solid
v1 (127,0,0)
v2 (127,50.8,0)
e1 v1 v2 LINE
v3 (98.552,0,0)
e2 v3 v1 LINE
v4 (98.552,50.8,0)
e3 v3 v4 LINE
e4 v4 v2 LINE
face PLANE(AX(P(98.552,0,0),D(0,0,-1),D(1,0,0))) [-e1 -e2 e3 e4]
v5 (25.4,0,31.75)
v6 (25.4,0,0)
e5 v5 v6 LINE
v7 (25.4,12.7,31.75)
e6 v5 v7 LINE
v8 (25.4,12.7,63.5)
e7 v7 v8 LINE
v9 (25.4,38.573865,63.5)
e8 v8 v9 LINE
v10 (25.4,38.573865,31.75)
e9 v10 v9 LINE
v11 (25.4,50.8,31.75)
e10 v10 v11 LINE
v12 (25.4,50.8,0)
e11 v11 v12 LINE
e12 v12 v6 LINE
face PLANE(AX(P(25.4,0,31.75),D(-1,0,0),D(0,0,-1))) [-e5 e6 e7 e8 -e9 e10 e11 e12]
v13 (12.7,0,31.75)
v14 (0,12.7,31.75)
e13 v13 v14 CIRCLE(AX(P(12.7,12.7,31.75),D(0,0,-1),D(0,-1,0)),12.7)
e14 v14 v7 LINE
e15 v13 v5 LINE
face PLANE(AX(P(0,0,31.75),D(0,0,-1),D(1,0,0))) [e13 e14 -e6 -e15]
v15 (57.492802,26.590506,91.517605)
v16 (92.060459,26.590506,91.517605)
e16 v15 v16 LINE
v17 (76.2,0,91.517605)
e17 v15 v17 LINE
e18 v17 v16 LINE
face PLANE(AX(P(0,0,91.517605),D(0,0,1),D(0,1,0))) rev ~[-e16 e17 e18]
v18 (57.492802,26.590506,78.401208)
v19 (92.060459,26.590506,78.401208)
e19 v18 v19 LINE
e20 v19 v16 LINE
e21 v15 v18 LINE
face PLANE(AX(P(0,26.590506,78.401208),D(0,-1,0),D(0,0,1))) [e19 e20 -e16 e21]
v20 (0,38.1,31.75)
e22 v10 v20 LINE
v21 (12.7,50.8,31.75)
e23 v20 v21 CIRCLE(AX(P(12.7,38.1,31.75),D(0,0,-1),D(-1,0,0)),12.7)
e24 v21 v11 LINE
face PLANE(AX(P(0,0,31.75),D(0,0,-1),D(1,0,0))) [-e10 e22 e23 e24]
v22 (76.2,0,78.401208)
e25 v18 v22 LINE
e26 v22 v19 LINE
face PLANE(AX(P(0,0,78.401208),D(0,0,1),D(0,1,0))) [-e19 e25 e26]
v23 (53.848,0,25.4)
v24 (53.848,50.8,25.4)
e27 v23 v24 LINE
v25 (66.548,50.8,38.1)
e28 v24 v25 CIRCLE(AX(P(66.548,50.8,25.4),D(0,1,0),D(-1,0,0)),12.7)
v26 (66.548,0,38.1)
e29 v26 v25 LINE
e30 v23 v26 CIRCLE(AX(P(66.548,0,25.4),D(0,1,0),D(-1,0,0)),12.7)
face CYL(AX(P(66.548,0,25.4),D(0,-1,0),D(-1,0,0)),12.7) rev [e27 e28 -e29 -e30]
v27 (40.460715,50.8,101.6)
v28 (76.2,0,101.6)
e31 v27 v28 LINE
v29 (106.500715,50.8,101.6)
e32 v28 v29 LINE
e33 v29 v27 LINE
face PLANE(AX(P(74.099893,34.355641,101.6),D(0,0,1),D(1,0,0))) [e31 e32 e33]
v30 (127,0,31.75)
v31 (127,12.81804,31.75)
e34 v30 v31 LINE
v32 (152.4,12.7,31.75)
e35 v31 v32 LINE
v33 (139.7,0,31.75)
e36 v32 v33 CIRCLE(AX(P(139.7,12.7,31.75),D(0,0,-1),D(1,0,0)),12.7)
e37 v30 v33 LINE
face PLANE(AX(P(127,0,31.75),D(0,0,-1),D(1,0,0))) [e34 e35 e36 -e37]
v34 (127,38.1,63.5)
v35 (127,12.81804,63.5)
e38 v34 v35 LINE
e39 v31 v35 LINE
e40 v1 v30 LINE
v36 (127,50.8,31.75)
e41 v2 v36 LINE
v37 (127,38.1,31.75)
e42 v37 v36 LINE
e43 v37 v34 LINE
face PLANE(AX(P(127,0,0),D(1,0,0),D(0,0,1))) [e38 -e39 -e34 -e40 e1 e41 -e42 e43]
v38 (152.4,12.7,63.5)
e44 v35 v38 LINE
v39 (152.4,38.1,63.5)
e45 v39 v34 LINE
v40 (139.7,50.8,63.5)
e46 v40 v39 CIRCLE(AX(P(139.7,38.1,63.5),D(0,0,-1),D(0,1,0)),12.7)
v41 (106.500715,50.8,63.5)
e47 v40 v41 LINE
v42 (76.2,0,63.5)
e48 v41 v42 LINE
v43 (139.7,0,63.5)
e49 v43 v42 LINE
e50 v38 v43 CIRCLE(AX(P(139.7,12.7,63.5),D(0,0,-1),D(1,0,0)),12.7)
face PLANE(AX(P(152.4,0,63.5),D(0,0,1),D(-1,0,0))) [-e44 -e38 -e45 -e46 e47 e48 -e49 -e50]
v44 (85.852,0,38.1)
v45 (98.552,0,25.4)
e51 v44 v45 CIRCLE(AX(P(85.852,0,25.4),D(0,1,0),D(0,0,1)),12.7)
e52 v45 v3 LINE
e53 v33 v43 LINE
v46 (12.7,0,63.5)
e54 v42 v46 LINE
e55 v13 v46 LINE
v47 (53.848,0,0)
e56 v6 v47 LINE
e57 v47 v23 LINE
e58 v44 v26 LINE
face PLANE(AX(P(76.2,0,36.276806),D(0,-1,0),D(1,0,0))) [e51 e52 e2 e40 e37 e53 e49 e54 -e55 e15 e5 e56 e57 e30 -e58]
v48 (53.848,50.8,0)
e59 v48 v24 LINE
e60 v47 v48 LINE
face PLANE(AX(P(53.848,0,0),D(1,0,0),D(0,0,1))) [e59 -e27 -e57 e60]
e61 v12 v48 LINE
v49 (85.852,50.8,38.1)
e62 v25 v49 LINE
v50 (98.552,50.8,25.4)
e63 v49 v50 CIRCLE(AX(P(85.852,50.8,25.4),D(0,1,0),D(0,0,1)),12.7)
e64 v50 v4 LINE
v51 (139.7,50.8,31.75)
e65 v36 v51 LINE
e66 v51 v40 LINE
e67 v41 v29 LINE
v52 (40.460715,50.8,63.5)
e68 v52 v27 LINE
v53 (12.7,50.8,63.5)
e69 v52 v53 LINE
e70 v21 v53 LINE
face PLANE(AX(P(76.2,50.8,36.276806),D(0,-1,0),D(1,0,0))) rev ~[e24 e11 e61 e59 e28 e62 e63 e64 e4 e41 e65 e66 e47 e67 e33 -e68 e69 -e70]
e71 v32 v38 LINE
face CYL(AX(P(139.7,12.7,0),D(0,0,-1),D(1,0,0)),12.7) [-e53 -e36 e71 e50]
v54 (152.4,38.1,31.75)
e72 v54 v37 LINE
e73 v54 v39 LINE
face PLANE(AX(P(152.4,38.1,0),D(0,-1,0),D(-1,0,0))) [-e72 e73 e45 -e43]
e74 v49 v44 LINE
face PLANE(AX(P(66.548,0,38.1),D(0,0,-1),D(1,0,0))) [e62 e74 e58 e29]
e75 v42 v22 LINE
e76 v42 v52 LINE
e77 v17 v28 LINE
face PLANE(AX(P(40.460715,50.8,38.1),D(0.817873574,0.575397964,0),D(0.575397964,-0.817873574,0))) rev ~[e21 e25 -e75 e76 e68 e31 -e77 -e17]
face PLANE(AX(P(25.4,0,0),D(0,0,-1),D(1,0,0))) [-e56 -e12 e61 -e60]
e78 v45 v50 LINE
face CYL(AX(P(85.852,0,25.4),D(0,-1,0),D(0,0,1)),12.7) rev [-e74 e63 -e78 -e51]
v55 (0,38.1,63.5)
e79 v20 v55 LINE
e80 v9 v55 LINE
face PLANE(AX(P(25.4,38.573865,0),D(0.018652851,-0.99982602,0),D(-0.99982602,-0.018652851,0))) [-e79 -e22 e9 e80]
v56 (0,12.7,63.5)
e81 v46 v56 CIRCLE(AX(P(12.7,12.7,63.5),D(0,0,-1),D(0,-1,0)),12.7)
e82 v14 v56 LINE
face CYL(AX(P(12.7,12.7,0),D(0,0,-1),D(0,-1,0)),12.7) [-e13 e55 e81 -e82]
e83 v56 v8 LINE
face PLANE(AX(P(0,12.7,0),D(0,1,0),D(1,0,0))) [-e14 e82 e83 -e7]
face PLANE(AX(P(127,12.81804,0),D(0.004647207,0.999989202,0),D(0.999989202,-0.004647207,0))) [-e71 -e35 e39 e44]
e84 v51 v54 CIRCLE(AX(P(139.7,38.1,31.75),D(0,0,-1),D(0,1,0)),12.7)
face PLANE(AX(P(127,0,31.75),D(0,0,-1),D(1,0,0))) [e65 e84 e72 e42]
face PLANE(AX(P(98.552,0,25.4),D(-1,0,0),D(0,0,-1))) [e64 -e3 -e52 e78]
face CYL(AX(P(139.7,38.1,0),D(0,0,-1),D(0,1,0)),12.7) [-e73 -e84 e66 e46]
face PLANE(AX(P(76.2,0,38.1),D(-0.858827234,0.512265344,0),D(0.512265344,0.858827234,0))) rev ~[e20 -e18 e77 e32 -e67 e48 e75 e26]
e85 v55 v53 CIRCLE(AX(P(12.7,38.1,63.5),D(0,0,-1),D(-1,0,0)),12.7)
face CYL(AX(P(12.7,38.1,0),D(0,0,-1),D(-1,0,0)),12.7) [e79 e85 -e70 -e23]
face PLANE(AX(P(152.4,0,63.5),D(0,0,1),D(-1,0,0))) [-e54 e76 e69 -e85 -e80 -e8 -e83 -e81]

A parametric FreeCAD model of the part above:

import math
import FreeCAD as App
import Part
import Sketcher
Q = App.Units.Quantity


def add_polygon(sketch, points):
    """Adds a closed chain of lines whose ends are joined by coincident constraints."""
    first, n = sketch.GeometryCount, len(points)
    for a, b in zip(points, points[1:] + points[:1]):
        sketch.addGeometry(Part.LineSegment(App.Vector(*a, 0), App.Vector(*b, 0)), False)
    for i in range(n):
        sketch.addConstraint(Sketcher.Constraint("Coincident", first + i, 2, first + (i + 1) % n, 1))

doc = App.newDocument("Part")
params = doc.addObject("Spreadsheet::Sheet", "Params")
for row, (alias, value) in enumerate([
    ("sketch1_radius", "0.5 in"),
    ("sketch1_width", "1 in"),
    ("sketch1_width2", "6 in"),
    ("sketch1_width3", "1.12 in"),
    ("pad1_length", "2 in"),
    ("sketch2_radius", "0.5 in"),
    ("sketch2_width", "1 in"),
    ("pocket1_length", "2.5 in"),
    ("sketch3_width", "2.6 in"),
    ("pad2_length", "2.5 in"),
], start=1):
    params.set(f"A{row}", alias)
    params.set(f"B{row}", "=" + value)
    params.setAlias(f"B{row}", alias)

body = doc.addObject("PartDesign::Body", "Body")

# Sketch on XZ plane
sketch1 = doc.addObject("Sketcher::SketchObject", "Sketch")
body.addObject(sketch1)
sketch1.AttachmentSupport = (doc.XZ_Plane, [""])
sketch1.MapMode = "FlatFace"
sketch1.addGeometry([
    Part.LineSegment(App.Vector(25, 32, 0), App.Vector(25, 0, 0)),  # 0
    Part.LineSegment(App.Vector(25, 0, 0), App.Vector(54, 0, 0)),  # 1
    Part.LineSegment(App.Vector(54, 0, 0), App.Vector(54, 25, 0)),  # 2
    Part.ArcOfCircle(Part.Circle(App.Vector(67, 25, 0), App.Vector(0, 0, 1), 13), math.radians(90), math.radians(180)),  # 3
    Part.LineSegment(App.Vector(67, 38, 0), App.Vector(86, 38, 0)),  # 4
    Part.ArcOfCircle(Part.Circle(App.Vector(86, 25, 0), App.Vector(0, 0, 1), 13), math.radians(0), math.radians(90)),  # 5
    Part.LineSegment(App.Vector(99, 25, 0), App.Vector(99, 0, 0)),  # 6
    Part.LineSegment(App.Vector(99, 0, 0), App.Vector(127, 0, 0)),  # 7
    Part.LineSegment(App.Vector(127, 0, 0), App.Vector(127, 32, 0)),  # 8
    Part.LineSegment(App.Vector(127, 32, 0), App.Vector(152, 32, 0)),  # 9
    Part.LineSegment(App.Vector(152, 32, 0), App.Vector(152, 64, 0)),  # 10
    Part.LineSegment(App.Vector(152, 64, 0), App.Vector(0, 64, 0)),  # 11
    Part.LineSegment(App.Vector(0, 64, 0), App.Vector(0, 32, 0)),  # 12
    Part.LineSegment(App.Vector(0, 32, 0), App.Vector(25, 32, 0)),  # 13
], False)
sketch1.addConstraint([
    Sketcher.Constraint("Coincident", 0, 2, 1, 1),
    Sketcher.Constraint("Coincident", 1, 2, 2, 1),
    Sketcher.Constraint("Tangent", 2, 2, 3, 2),
    Sketcher.Constraint("Tangent", 3, 1, 4, 1),
    Sketcher.Constraint("Tangent", 4, 2, 5, 2),
    Sketcher.Constraint("Tangent", 5, 1, 6, 1),
    Sketcher.Constraint("Coincident", 6, 2, 7, 1),
    Sketcher.Constraint("Coincident", 7, 2, 8, 1),
    Sketcher.Constraint("Coincident", 8, 2, 9, 1),
    Sketcher.Constraint("Coincident", 9, 2, 10, 1),
    Sketcher.Constraint("Coincident", 10, 2, 11, 1),
    Sketcher.Constraint("Coincident", 11, 2, 12, 1),
    Sketcher.Constraint("Coincident", 12, 2, 13, 1),
    Sketcher.Constraint("Coincident", 13, 2, 0, 1),
    Sketcher.Constraint("Vertical", 0),
    Sketcher.Constraint("Horizontal", 1),
    Sketcher.Constraint("Vertical", 2),
    Sketcher.Constraint("Horizontal", 4),
    Sketcher.Constraint("Vertical", 6),
    Sketcher.Constraint("Horizontal", 7),
    Sketcher.Constraint("Vertical", 8),
    Sketcher.Constraint("Horizontal", 9),
    Sketcher.Constraint("Vertical", 10),
    Sketcher.Constraint("Horizontal", 11),
    Sketcher.Constraint("Vertical", 12),
    Sketcher.Constraint("Horizontal", 13),
    Sketcher.Constraint("Equal", 3, 5),
    Sketcher.Constraint("PointOnObject", 0, 2, -1),
    Sketcher.Constraint("PointOnObject", 6, 2, -1),
    Sketcher.Constraint("PointOnObject", 11, 2, -2),
    Sketcher.Constraint("Horizontal", 9, 2, 12, 2),
    Sketcher.Constraint("Equal", 1, 7),
    Sketcher.Constraint("Equal", 9, 13),
    Sketcher.Constraint("Equal", 13, 2),
    Sketcher.Constraint("Equal", 8, 10),
    Sketcher.Constraint("Radius", 3, Q("0.5 in")),
    Sketcher.Constraint("DistanceX", 9, 1, 9, 2, Q("1 in")),
    Sketcher.Constraint("DistanceX", 11, 2, 11, 1, Q("6 in")),
    Sketcher.Constraint("DistanceY", 4, 2, 10, 2, Q("1 in")),
    Sketcher.Constraint("DistanceX", 1, 1, 1, 2, Q("1.12 in")),
])
sketch1.setExpression("Constraints[35]", "Params.sketch1_radius")
sketch1.setExpression("Constraints[36]", "Params.sketch1_width")
sketch1.setExpression("Constraints[37]", "Params.sketch1_width2")
sketch1.setExpression("Constraints[39]", "Params.sketch1_width3")
pad1 = doc.addObject("PartDesign::Pad", "Pad")
body.addObject(pad1)
pad1.Profile = sketch1
pad1.setExpression("Length", "Params.pad1_length")
pad1.Reversed = True

# Sketch on XY plane
sketch2 = doc.addObject("Sketcher::SketchObject", "Sketch001")
body.addObject(sketch2)
sketch2.AttachmentSupport = (doc.XY_Plane, [""])
sketch2.MapMode = "FlatFace"
sketch2.addGeometry(Part.LineSegment(App.Vector(0, 51, 0), App.Vector(0, 38, 0)), False)  # 0
sketch2.addGeometry(Part.ArcOfCircle(Part.Circle(App.Vector(13, 38, 0), App.Vector(0, 0, 1), 13), math.radians(90), math.radians(180)), False)  # 1
sketch2.addGeometry(Part.LineSegment(App.Vector(13, 51, 0), App.Vector(0, 51, 0)), False)  # 2
sketch2.addGeometry(Part.ArcOfCircle(Part.Circle(App.Vector(13, 13, 0), App.Vector(0, 0, 1), 13), math.radians(180), math.radians(270)), False)  # 3
sketch2.addGeometry(Part.LineSegment(App.Vector(0, 13, 0), App.Vector(0, 0, 0)), False)  # 4
sketch2.addGeometry(Part.LineSegment(App.Vector(0, 0, 0), App.Vector(13, 0, 0)), False)  # 5
add_polygon(sketch2, [(0, 38), (0, 13), (25, 13), (25, 39)])  # lines 6-9
add_polygon(sketch2, [(127, 13), (152, 13), (152, 38), (127, 38)])  # lines 10-13
sketch2.addGeometry(Part.LineSegment(App.Vector(152, 0, 0), App.Vector(152, 13, 0)), False)  # 14
sketch2.addGeometry(Part.ArcOfCircle(Part.Circle(App.Vector(140, 13, 0), App.Vector(0, 0, 1), 13), math.radians(-90), math.radians(0)), False)  # 15
sketch2.addGeometry(Part.LineSegment(App.Vector(140, 0, 0), App.Vector(152, 0, 0)), False)  # 16
sketch2.addGeometry(Part.ArcOfCircle(Part.Circle(App.Vector(140, 38, 0), App.Vector(0, 0, 1), 13), math.radians(0), math.radians(90)), False)  # 17
sketch2.addGeometry(Part.LineSegment(App.Vector(152, 38, 0), App.Vector(152, 51, 0)), False)  # 18
sketch2.addGeometry(Part.LineSegment(App.Vector(152, 51, 0), App.Vector(140, 51, 0)), False)  # 19
sketch2.addConstraint([
    Sketcher.Constraint("Tangent", 0, 2, 1, 2),
    Sketcher.Constraint("Tangent", 1, 1, 2, 1),
    Sketcher.Constraint("Coincident", 2, 2, 0, 1),
    Sketcher.Constraint("Tangent", 3, 1, 4, 1),
    Sketcher.Constraint("Coincident", 4, 2, 5, 1),
    Sketcher.Constraint("Tangent", 5, 2, 3, 2),
    Sketcher.Constraint("Tangent", 14, 2, 15, 2),
    Sketcher.Constraint("Tangent", 15, 1, 16, 1),
    Sketcher.Constraint("Coincident", 16, 2, 14, 1),
    Sketcher.Constraint("Tangent", 17, 1, 18, 1),
    Sketcher.Constraint("Coincident", 18, 2, 19, 1),
    Sketcher.Constraint("Tangent", 19, 2, 17, 2),
    Sketcher.Constraint("Vertical", 0),
    Sketcher.Constraint("Horizontal", 2),
    Sketcher.Constraint("Vertical", 4),
    Sketcher.Constraint("Horizontal", 5),
    Sketcher.Constraint("Vertical", 6),
    Sketcher.Constraint("Horizontal", 7),
    Sketcher.Constraint("Vertical", 8),
    Sketcher.Constraint("Vertical", 11),
    Sketcher.Constraint("Horizontal", 12),
    Sketcher.Constraint("Vertical", 13),
    Sketcher.Constraint("Vertical", 14),
    Sketcher.Constraint("Horizontal", 16),
    Sketcher.Constraint("Vertical", 18),
    Sketcher.Constraint("Horizontal", 19),
    Sketcher.Constraint("Coincident", 4, 2, -1, 1),
    Sketcher.Constraint("Coincident", 6, 2, 3, 1),
    Sketcher.Constraint("Coincident", 9, 2, 0, 2),
    Sketcher.Constraint("Coincident", 14, 2, 10, 2),
    Sketcher.Constraint("Coincident", 17, 1, 11, 2),
    Sketcher.Constraint("Equal", 1, 3),
    Sketcher.Constraint("Equal", 3, 15),
    Sketcher.Constraint("Equal", 15, 17),
    Sketcher.Constraint("PointOnObject", 15, 1, -1),
    Sketcher.Constraint("Horizontal", 1, 3, 17, 3),
    Sketcher.Constraint("Equal", 7, 12),
    Sketcher.Constraint("Equal", 12, 6),
    Sketcher.Constraint("Radius", 1, Q("0.5 in")),
    Sketcher.Constraint("DistanceX", 7, 1, 7, 2, Q("1 in")),
    Sketcher.Constraint("DistanceX", -1, 1, 10, 2, Q("6 in")),
    Sketcher.Constraint("DistanceY", 13, 2, 13, 1, Q("25.28196 mm")),
    Sketcher.Constraint("Distance", 9, Q("25.40442 mm")),
])
sketch2.setExpression("Constraints[46]", "Params.sketch2_radius")
sketch2.setExpression("Constraints[47]", "Params.sketch2_width")
pocket1 = doc.addObject("PartDesign::Pocket", "Pocket")
body.addObject(pocket1)
pocket1.Profile = sketch2
pocket1.setExpression("Length", "Params.pocket1_length")
pocket1.Reversed = True

# Sketch on XY plane
sketch3 = doc.addObject("Sketcher::SketchObject", "Sketch002")
body.addObject(sketch3)
sketch3.AttachmentSupport = (doc.XY_Plane, [""])
sketch3.MapMode = "FlatFace"
sketch3.AttachmentOffset = App.Placement(App.Vector(0, 0, 1.5 * 25.4), App.Rotation())
add_polygon(sketch3, [(40, 51), (76, 0), (107, 51)])  # lines 0-2
sketch3.addConstraint([
    Sketcher.Constraint("Horizontal", 2),
    Sketcher.Constraint("PointOnObject", 0, 2, -1),
    Sketcher.Constraint("DistanceX", 2, 2, 2, 1, Q("2.6 in")),
    Sketcher.Constraint("DistanceX", -1, 1, 0, 2, Q("3 in")),
    Sketcher.Constraint("DistanceY", -1, 1, 1, 2, Q("2 in")),
    Sketcher.Constraint("Distance", 0, Q("62.112289 mm")),
])
sketch3.setExpression("Constraints[5]", "Params.sketch3_width")
pad2 = doc.addObject("PartDesign::Pad", "Pad001")
body.addObject(pad2)
pad2.Profile = sketch3
pad2.setExpression("Length", "Params.pad2_length")

# Sketch on YZ plane
sketch4 = doc.addObject("Sketcher::SketchObject", "Sketch003")
body.addObject(sketch4)
sketch4.AttachmentSupport = (doc.YZ_Plane, [""])
sketch4.MapMode = "FlatFace"
add_polygon(sketch4, [(0, 92), (0, 78), (27, 78), (27, 92)])  # lines 0-3
sketch4.addConstraint([
    Sketcher.Constraint("Vertical", 0),
    Sketcher.Constraint("Horizontal", 1),
    Sketcher.Constraint("Vertical", 2),
    Sketcher.Constraint("Horizontal", 3),
    Sketcher.Constraint("PointOnObject", 0, 2, -2),
    Sketcher.Constraint("DistanceX", 1, 1, 1, 2, Q("26.590506 mm")),
    Sketcher.Constraint("DistanceY", 0, 2, 0, 1, Q("13.116397 mm")),
    Sketcher.Constraint("DistanceY", -1, 1, 0, 2, Q("78.401208 mm")),
])
pocket2 = doc.addObject("PartDesign::Pocket", "Pocket001")
body.addObject(pocket2)
pocket2.Profile = sketch4
pocket2.Type = "ThroughAll"
pocket2.Reversed = True

doc.recompute()
